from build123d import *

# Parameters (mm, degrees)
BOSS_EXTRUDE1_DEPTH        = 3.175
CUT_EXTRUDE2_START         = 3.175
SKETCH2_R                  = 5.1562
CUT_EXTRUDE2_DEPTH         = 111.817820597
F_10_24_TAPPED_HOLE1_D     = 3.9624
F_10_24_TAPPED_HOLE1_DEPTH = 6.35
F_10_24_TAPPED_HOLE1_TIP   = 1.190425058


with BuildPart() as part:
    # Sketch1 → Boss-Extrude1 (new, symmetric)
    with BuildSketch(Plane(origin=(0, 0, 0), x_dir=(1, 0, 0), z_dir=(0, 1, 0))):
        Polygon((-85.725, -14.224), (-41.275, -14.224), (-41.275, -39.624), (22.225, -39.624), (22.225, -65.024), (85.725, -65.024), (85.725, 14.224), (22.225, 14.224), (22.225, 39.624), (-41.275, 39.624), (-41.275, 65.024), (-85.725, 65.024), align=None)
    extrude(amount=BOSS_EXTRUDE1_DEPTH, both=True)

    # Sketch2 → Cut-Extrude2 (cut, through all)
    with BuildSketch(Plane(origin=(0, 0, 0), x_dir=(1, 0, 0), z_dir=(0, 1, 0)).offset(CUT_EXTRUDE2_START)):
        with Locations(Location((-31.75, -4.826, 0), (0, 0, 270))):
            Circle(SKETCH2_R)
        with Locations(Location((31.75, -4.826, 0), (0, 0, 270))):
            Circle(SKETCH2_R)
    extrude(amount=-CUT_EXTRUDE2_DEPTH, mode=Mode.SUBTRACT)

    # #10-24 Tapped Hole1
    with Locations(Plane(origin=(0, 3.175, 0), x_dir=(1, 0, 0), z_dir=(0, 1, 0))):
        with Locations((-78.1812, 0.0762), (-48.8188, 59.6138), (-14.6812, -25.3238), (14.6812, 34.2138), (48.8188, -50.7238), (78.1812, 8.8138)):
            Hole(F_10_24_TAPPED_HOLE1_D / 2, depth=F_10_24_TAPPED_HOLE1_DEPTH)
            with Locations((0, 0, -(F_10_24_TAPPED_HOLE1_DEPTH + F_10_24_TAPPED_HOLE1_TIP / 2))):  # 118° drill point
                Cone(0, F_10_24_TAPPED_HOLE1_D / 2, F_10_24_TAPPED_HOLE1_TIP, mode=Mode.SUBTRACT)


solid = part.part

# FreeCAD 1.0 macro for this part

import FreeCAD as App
import Part
import Sketcher
from FreeCAD import Vector
Q = App.Units.Quantity


def add_polygon(sketch, points):
    """Adds a closed chain of lines whose ends are joined by coincident constraints."""
    first, n = sketch.GeometryCount, len(points)
    for a, b in zip(points, points[1:] + points[:1]):
        sketch.addGeometry(Part.LineSegment(App.Vector(*a, 0), App.Vector(*b, 0)), False)
    for i in range(n):
        sketch.addConstraint(Sketcher.Constraint("Coincident", first + i, 2, first + (i + 1) % n, 1))

doc = App.newDocument("Part")
body = doc.addObject("PartDesign::Body", "Body")

# Sketch on XZ plane
sketch1 = body.newObject("Sketcher::SketchObject", "Sketch")
sketch1.AttachmentSupport = (doc.getObject("XZ_Plane"), [""])
sketch1.MapMode = "FlatFace"
add_polygon(sketch1, [(-85.725, 14.224), (-41.275, 14.224), (-41.275, 39.624), (22.225, 39.624), (22.225, 65.024), (85.725, 65.024), (85.725, -14.224), (22.225, -14.224), (22.225, -39.624), (-41.275, -39.624), (-41.275, -65.024), (-85.725, -65.024)])  # lines 0-11
sketch1.addConstraint(Sketcher.Constraint("Horizontal", 0))
sketch1.addConstraint(Sketcher.Constraint("Vertical", 1))
sketch1.addConstraint(Sketcher.Constraint("Horizontal", 2))
sketch1.addConstraint(Sketcher.Constraint("Vertical", 3))
sketch1.addConstraint(Sketcher.Constraint("Horizontal", 4))
sketch1.addConstraint(Sketcher.Constraint("Vertical", 5))
sketch1.addConstraint(Sketcher.Constraint("Horizontal", 6))
sketch1.addConstraint(Sketcher.Constraint("Vertical", 7))
sketch1.addConstraint(Sketcher.Constraint("Horizontal", 8))
sketch1.addConstraint(Sketcher.Constraint("Vertical", 9))
sketch1.addConstraint(Sketcher.Constraint("Horizontal", 10))
sketch1.addConstraint(Sketcher.Constraint("Vertical", 11))
sketch1.addConstraint(Sketcher.Constraint("Symmetric", 4, 2, 10, 2, -1, 1))
sketch1.addConstraint(Sketcher.Constraint("Symmetric", 2, 2, 7, 2, -1))
sketch1.addConstraint(Sketcher.Constraint("Vertical", 1, 2, 8, 2))
sketch1.addConstraint(Sketcher.Constraint("Equal", 2, 4))
sketch1.addConstraint(Sketcher.Constraint("Equal", 1, 3))
sketch1.addConstraint(Sketcher.Constraint("Equal", 3, 7))
sketch1.addConstraint(Sketcher.Constraint("DistanceY", 1, 1, 1, 2, Q("1 in")))
sketch1.addConstraint(Sketcher.Constraint("DistanceX", 2, 1, 2, 2, Q("2.5 in")))
sketch1.addConstraint(Sketcher.Constraint("DistanceX", 0, 1, 0, 2, Q("1.75 in")))
sketch1.addConstraint(Sketcher.Constraint("DistanceY", 5, 2, 5, 1, Q("3.12 in")))
pad1 = body.newObject("PartDesign::Pad", "Pad")
pad1.Profile = sketch1
pad1.Length = Q("0.25 in")
pad1.Midplane = True

# Sketch on XZ plane
sketch2 = body.newObject("Sketcher::SketchObject", "Sketch001")
sketch2.AttachmentSupport = (doc.getObject("XZ_Plane"), [""])
sketch2.MapMode = "FlatFace"
sketch2.AttachmentOffset = App.Placement(Vector(0, 0, -0.125 * 25.4), App.Rotation())
sketch2.addGeometry(Part.Circle(Vector(-31.75, 4.826, 0), Vector(0, 0, 1), 5.1562), False)
sketch2.addGeometry(Part.Circle(Vector(31.75, 4.826, 0), Vector(0, 0, 1), 5.1562), False)
sketch2.addConstraint(Sketcher.Constraint("Equal", 0, 1))
sketch2.addConstraint(Sketcher.Constraint("Symmetric", 0, 3, 1, 3, -2))
sketch2.addConstraint(Sketcher.Constraint("Diameter", 0, Q("0.406 in")))
sketch2.addConstraint(Sketcher.Constraint("DistanceX", 0, 3, 1, 3, Q("2.5 in")))
sketch2.addConstraint(Sketcher.Constraint("DistanceY", -1, 1, 0, 3, Q("0.19 in")))
pocket1 = body.newObject("PartDesign::Pocket", "Pocket")
pocket1.Profile = sketch2
pocket1.Type = "ThroughAll"
pocket1.Reversed = True

# Sketch on XZ plane
sketch3 = body.newObject("Sketcher::SketchObject", "Sketch002")
sketch3.AttachmentSupport = (doc.getObject("XZ_Plane"), [""])
sketch3.MapMode = "FlatFace"
sketch3.AttachmentOffset = App.Placement(Vector(0, 0, -0.125 * 25.4), App.Rotation())
sketch3.addGeometry(Part.Circle(Vector(-78.1812, -0.0762, 0), Vector(0, 0, 1), 1.9812), False)
sketch3.addGeometry(Part.Circle(Vector(-48.8188, -59.6138, 0), Vector(0, 0, 1), 1.9812), False)
sketch3.addGeometry(Part.Circle(Vector(-14.6812, 25.3238, 0), Vector(0, 0, 1), 1.9812), False)
sketch3.addGeometry(Part.Circle(Vector(14.6812, -34.2138, 0), Vector(0, 0, 1), 1.9812), False)
sketch3.addGeometry(Part.Circle(Vector(48.8188, 50.7238, 0), Vector(0, 0, 1), 1.9812), False)
sketch3.addGeometry(Part.Circle(Vector(78.1812, -8.8138, 0), Vector(0, 0, 1), 1.9812), False)
sketch3.addConstraint(Sketcher.Constraint("Equal", 0, 1))
sketch3.addConstraint(Sketcher.Constraint("Equal", 1, 2))
sketch3.addConstraint(Sketcher.Constraint("Equal", 2, 3))
sketch3.addConstraint(Sketcher.Constraint("Equal", 3, 4))
sketch3.addConstraint(Sketcher.Constraint("Equal", 4, 5))
sketch3.addConstraint(Sketcher.Constraint("Diameter", 0, Q("0.156 in")))
sketch3.addConstraint(Sketcher.Constraint("DistanceY", 0, 3, 2, 3, Q("1 in")))
sketch3.addConstraint(Sketcher.Constraint("DistanceY", 1, 3, 3, 3, Q("1 in")))
sketch3.addConstraint(Sketcher.Constraint("DistanceY", 2, 3, 4, 3, Q("1 in")))
sketch3.addConstraint(Sketcher.Constraint("DistanceX", 0, 3, 4, 3, Q("5 in")))
sketch3.addConstraint(Sketcher.Constraint("DistanceY", 3, 3, 5, 3, Q("1 in")))
sketch3.addConstraint(Sketcher.Constraint("DistanceX", 1, 3, 5, 3, Q("5 in")))
sketch3.addConstraint(Sketcher.Constraint("DistanceX", 0, 3, 2, 3, Q("2.5 in")))
sketch3.addConstraint(Sketcher.Constraint("DistanceX", 1, 3, 3, 3, Q("2.5 in")))
sketch3.addConstraint(Sketcher.Constraint("DistanceX", 0, 3, -1, 1, Q("3.078 in")))
sketch3.addConstraint(Sketcher.Constraint("DistanceY", 0, 3, -1, 1, Q("0.003 in")))
sketch3.addConstraint(Sketcher.Constraint("DistanceX", 1, 3, -1, 1, Q("1.922 in")))
sketch3.addConstraint(Sketcher.Constraint("DistanceY", 1, 3, -1, 1, Q("2.347 in")))
doc.recompute()
hole = body.newObject("PartDesign::Hole", "Hole")
hole.Profile = sketch3
hole.ThreadType = "None"
hole.Diameter = Q("0.156 in")
hole.DepthType = "Dimension"
hole.Depth = Q("0.25 in")
hole.DrillPoint = "Angled"
hole.DrillPointAngle = 118
hole.Reversed = True

doc.recompute()
